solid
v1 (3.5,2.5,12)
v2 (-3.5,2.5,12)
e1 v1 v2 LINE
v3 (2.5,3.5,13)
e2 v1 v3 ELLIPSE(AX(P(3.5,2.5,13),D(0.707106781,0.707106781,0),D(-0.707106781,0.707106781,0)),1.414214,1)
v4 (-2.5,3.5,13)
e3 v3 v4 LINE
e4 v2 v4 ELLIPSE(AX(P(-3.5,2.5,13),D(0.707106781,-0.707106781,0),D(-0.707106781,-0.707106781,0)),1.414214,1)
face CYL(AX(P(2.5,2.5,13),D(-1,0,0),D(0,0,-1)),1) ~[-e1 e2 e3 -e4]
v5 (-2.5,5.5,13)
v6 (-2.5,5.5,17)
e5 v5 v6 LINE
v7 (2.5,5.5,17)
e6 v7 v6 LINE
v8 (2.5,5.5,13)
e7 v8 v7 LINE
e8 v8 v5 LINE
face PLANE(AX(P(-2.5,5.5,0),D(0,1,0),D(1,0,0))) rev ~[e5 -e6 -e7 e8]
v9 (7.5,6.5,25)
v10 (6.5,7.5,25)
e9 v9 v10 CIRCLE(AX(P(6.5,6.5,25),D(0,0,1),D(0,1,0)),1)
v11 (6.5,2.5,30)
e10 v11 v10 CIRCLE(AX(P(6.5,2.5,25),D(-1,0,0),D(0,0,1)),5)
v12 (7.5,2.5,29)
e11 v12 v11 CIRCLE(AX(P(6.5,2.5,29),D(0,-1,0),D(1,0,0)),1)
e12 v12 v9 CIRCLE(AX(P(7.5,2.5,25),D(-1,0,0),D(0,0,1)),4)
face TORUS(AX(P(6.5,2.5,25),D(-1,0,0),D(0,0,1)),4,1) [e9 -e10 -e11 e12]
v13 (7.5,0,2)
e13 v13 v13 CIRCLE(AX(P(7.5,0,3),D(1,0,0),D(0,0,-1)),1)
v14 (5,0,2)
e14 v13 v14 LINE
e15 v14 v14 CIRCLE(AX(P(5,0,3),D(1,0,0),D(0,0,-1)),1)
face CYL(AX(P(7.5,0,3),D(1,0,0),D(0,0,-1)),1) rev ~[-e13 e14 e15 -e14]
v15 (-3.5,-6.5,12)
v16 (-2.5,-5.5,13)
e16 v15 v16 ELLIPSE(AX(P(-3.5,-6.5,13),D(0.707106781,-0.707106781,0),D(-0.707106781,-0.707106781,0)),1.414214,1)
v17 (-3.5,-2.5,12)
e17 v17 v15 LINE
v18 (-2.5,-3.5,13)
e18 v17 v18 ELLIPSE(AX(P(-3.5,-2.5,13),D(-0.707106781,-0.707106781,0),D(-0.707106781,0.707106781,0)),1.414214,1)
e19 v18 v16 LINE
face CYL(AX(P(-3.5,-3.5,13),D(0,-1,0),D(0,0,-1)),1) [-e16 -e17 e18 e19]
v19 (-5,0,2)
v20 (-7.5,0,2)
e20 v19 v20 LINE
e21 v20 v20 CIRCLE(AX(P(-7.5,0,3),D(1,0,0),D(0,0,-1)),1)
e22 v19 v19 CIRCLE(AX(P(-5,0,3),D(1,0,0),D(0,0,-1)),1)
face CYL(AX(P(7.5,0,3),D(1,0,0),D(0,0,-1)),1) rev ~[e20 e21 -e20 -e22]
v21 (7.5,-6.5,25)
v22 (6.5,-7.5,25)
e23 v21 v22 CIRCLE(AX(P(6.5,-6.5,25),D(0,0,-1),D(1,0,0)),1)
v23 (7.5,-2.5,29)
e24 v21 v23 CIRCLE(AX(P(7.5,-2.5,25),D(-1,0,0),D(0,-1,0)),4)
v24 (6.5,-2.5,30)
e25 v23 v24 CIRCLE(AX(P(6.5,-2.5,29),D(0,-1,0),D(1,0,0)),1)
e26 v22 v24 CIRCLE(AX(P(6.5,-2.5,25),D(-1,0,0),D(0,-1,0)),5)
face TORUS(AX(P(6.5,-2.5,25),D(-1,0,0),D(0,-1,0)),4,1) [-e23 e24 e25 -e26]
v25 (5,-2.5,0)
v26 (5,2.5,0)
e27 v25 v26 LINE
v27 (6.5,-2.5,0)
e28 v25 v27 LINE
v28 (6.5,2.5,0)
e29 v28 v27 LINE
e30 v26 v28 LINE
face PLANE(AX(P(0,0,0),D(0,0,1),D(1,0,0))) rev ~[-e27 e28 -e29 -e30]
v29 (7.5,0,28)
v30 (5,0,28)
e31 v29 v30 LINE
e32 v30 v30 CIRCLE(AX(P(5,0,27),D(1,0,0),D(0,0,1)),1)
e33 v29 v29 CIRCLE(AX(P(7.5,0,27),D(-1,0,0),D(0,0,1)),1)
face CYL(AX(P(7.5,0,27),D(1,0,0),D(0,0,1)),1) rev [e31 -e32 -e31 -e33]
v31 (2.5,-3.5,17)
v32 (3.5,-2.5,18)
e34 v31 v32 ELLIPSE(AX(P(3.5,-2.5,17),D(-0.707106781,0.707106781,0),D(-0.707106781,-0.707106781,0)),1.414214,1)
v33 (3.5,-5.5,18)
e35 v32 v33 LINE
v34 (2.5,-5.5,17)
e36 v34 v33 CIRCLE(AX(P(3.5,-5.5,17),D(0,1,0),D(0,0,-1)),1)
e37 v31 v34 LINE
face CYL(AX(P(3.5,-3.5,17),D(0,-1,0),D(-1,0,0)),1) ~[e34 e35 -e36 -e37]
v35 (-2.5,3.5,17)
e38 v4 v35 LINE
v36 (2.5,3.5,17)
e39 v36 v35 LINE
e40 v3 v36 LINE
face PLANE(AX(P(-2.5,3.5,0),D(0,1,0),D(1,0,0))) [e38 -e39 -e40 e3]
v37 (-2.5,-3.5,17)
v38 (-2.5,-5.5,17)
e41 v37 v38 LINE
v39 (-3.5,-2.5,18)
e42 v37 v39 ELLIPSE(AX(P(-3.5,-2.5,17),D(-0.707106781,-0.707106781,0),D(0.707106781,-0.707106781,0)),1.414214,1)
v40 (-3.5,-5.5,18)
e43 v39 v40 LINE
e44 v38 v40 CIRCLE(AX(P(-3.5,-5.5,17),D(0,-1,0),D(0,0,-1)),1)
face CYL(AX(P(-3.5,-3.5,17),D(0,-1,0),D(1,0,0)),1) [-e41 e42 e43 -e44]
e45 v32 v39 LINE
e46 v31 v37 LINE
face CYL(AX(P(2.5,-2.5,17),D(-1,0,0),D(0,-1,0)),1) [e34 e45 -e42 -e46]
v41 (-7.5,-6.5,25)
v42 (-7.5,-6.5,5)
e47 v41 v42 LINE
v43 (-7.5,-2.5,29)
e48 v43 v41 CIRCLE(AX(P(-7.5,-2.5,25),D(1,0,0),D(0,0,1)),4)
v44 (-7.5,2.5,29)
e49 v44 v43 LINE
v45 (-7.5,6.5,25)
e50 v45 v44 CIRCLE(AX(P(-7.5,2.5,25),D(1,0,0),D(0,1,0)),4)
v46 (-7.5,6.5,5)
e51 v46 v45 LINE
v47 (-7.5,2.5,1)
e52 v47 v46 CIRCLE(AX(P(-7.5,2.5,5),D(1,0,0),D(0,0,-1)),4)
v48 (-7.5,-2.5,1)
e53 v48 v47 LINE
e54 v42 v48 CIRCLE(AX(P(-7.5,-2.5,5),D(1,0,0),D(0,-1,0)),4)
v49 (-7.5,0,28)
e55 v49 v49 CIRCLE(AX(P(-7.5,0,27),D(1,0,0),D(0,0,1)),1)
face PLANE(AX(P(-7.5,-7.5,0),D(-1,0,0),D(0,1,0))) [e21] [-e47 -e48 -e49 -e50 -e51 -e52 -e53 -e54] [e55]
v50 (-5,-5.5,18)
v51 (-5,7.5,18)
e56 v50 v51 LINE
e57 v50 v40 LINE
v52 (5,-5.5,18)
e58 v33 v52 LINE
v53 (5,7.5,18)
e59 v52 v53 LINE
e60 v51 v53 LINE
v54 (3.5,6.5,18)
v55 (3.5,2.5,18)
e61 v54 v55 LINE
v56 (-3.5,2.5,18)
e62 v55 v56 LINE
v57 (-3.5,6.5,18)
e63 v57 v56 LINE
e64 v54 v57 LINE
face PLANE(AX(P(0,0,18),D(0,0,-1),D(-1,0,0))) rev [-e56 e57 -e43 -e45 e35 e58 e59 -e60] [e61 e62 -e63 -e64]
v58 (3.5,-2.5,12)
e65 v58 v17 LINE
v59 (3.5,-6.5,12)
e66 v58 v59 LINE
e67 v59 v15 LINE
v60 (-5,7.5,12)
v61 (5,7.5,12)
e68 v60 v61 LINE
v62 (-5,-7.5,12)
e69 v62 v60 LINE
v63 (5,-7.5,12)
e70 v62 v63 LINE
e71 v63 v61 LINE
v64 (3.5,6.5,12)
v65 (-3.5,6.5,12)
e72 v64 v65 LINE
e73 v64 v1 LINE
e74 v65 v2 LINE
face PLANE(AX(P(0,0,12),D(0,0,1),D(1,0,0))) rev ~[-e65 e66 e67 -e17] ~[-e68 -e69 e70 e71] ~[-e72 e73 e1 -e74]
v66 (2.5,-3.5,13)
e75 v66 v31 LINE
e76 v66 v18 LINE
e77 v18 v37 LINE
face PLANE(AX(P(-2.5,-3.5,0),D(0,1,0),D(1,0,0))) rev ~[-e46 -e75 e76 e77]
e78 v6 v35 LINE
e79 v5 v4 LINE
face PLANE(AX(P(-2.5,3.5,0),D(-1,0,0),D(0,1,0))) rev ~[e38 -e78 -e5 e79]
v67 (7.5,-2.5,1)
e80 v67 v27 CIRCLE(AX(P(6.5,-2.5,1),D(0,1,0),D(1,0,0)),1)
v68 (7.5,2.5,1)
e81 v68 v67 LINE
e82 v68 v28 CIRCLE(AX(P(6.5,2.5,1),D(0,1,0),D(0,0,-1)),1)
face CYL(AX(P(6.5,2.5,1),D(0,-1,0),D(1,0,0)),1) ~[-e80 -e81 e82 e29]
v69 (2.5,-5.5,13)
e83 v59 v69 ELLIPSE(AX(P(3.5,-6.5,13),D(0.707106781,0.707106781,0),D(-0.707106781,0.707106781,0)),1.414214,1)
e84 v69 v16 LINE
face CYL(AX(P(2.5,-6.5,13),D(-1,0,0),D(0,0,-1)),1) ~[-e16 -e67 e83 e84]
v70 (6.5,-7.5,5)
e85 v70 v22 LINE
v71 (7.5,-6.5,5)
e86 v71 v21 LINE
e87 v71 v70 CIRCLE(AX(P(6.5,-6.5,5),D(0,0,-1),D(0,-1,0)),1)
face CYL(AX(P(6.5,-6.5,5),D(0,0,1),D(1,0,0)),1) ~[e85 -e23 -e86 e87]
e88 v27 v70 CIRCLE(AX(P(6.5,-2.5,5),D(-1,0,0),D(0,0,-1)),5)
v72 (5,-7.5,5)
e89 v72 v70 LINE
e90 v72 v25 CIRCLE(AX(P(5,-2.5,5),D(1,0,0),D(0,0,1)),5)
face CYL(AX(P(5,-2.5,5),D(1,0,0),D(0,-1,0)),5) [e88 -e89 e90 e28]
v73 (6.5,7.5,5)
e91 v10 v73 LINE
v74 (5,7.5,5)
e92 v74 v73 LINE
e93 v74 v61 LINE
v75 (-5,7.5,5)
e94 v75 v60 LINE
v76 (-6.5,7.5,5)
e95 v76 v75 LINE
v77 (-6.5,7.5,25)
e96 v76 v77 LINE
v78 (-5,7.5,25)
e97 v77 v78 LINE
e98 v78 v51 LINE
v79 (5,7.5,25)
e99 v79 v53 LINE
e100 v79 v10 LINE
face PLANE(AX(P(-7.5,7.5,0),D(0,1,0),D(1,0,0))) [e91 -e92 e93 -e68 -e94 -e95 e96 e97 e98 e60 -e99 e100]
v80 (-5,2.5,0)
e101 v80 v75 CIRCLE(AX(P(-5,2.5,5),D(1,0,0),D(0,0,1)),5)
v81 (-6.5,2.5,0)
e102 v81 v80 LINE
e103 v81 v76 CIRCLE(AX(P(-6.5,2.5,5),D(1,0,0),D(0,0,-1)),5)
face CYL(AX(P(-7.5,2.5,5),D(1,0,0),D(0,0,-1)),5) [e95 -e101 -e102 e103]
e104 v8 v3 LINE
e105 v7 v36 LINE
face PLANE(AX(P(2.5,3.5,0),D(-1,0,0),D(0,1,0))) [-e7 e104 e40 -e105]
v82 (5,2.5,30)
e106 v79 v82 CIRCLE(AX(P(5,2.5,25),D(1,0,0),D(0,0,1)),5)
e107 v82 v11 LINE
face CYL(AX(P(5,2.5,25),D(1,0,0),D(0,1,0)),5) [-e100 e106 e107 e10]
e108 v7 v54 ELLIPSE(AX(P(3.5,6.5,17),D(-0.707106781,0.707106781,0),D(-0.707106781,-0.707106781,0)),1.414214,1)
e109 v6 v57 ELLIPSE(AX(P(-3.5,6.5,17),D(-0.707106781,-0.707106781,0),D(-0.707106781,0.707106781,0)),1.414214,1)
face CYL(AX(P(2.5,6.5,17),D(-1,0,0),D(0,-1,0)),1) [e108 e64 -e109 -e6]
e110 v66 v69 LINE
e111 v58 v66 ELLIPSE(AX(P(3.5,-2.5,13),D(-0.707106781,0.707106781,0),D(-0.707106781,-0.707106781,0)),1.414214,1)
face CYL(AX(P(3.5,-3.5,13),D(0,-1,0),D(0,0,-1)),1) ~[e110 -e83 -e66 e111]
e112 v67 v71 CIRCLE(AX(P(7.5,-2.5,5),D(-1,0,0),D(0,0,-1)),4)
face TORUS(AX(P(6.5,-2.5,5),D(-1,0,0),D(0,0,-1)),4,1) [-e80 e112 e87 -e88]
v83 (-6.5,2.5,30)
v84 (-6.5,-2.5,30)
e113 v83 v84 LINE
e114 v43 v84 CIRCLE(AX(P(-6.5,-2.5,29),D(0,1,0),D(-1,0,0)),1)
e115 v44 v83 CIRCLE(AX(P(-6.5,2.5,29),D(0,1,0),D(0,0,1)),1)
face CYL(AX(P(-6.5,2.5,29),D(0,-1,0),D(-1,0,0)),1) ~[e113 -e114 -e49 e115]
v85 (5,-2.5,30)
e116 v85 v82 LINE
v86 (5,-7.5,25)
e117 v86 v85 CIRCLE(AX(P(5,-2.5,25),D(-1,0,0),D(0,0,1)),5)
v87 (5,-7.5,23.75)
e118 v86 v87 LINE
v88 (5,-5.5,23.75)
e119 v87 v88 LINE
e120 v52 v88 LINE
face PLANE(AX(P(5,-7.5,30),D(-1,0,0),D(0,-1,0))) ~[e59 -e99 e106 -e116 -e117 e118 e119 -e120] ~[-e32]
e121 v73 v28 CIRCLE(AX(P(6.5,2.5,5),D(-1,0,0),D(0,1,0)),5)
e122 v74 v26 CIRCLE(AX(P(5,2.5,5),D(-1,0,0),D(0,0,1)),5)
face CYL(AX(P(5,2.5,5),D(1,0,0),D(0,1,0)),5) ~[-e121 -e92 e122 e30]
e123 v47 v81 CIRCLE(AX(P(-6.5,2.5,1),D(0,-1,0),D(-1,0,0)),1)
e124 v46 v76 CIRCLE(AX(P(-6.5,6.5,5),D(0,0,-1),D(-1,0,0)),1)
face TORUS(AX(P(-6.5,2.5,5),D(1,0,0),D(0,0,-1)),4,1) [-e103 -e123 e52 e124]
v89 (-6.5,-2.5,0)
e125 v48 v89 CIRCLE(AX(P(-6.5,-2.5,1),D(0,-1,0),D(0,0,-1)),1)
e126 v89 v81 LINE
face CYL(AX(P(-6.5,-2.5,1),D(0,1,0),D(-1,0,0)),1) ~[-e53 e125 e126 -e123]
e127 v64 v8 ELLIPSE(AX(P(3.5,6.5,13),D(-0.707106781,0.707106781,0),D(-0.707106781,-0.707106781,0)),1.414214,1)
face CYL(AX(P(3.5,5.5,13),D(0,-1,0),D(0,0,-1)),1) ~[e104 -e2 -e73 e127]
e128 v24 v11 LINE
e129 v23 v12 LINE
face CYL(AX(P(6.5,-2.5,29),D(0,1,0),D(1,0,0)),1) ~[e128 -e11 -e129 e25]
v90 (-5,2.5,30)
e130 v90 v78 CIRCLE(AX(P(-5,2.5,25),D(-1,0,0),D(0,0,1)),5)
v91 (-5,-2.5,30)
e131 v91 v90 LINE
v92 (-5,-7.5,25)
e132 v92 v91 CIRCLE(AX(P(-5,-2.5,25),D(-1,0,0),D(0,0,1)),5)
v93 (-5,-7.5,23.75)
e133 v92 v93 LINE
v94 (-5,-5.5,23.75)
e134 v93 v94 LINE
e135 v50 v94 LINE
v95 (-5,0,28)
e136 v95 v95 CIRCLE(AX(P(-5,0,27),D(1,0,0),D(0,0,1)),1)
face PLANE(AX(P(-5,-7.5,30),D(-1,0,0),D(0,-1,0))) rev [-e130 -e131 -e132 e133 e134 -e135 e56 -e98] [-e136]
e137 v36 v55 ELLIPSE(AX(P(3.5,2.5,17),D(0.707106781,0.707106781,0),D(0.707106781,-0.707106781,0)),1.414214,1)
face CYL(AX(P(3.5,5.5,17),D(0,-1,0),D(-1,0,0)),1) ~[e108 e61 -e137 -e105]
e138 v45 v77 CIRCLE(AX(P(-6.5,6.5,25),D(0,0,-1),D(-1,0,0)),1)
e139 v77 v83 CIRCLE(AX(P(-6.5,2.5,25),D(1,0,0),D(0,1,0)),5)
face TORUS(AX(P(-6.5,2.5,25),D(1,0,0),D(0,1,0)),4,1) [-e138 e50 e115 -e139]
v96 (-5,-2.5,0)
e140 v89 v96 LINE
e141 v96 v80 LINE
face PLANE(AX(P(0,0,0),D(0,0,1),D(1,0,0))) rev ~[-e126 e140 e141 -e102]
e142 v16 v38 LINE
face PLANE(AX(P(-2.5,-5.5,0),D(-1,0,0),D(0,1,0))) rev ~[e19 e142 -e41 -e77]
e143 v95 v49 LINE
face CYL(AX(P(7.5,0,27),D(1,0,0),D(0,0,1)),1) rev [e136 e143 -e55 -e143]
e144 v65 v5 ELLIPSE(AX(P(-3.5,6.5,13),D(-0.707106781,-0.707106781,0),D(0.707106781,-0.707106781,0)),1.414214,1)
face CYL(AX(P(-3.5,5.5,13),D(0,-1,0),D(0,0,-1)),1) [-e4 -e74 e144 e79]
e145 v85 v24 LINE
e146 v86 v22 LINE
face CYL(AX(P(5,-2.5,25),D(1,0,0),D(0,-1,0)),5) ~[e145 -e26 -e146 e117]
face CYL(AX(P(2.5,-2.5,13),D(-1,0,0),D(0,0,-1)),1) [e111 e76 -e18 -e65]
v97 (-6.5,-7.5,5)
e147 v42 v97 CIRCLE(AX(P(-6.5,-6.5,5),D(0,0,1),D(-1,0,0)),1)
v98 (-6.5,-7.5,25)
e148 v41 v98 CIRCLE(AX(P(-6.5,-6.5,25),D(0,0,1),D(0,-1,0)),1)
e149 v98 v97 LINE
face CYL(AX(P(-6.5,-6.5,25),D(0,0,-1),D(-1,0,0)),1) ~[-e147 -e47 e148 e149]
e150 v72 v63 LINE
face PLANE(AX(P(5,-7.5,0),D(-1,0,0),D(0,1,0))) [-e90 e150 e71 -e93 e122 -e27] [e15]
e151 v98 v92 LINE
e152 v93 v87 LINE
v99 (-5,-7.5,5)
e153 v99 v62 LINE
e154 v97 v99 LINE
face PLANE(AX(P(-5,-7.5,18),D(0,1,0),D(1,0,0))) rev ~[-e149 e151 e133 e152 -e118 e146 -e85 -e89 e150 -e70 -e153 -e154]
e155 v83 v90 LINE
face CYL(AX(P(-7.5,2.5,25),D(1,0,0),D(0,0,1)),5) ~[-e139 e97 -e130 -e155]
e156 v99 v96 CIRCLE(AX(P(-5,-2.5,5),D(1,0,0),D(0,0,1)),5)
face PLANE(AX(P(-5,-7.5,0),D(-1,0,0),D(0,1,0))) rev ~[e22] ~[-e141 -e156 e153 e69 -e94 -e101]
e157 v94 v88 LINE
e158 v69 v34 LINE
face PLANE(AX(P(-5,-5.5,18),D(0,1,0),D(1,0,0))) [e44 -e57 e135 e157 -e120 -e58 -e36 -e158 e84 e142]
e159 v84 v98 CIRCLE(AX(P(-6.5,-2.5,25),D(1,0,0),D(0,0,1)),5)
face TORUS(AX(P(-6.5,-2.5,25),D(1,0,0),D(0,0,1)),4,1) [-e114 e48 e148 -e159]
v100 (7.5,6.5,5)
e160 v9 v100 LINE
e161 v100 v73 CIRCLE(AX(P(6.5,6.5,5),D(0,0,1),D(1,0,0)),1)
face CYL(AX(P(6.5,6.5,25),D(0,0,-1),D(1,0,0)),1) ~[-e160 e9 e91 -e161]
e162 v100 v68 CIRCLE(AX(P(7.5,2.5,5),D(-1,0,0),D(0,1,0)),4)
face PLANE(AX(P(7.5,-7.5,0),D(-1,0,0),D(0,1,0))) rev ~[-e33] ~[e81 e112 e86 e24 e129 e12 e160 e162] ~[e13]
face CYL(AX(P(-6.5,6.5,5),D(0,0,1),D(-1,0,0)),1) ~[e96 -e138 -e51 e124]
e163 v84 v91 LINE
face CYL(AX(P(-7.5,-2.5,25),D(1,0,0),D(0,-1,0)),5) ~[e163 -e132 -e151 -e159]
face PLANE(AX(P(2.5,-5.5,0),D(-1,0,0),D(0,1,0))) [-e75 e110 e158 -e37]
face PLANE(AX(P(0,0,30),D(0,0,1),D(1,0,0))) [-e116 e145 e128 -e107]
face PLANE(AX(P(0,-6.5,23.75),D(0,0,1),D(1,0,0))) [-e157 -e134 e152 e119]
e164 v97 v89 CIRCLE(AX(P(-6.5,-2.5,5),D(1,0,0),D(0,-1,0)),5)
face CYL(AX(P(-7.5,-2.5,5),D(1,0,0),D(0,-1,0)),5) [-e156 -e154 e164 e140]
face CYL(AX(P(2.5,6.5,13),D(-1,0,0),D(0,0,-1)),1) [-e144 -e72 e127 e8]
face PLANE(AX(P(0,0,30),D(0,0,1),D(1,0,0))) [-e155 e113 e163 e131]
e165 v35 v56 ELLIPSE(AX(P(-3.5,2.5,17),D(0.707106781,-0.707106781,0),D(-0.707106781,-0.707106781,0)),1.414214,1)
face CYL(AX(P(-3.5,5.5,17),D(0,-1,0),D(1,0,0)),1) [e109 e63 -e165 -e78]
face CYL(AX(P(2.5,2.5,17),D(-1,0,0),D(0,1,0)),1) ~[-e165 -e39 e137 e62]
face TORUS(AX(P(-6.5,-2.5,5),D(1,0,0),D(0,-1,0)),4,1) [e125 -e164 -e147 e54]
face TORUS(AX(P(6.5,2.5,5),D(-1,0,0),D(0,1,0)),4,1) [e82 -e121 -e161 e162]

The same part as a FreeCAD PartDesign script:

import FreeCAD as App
import Part
import Sketcher

V = App.Vector


def edges_at(feature, points):
    """Names of the edges that pass closest to the given points."""
    edges = feature.Shape.Edges
    near = lambda p: min(range(len(edges)), key=lambda i: edges[i].distToShape(Part.Vertex(*p))[0])
    return sorted({f"Edge{near(p) + 1}" for p in points})


def add_polygon(sketch, points):
    """Adds a closed chain of lines whose ends are joined by coincident constraints."""
    first, n = sketch.GeometryCount, len(points)
    for a, b in zip(points, points[1:] + points[:1]):
        sketch.addGeometry(Part.LineSegment(App.Vector(*a, 0), App.Vector(*b, 0)), False)
    for i in range(n):
        sketch.addConstraint(Sketcher.Constraint("Coincident", first + i, 2, first + (i + 1) % n, 1))

doc = App.newDocument("Part")
body = doc.addObject("PartDesign::Body", "Body")

# Sketch on XY plane
sketch1 = doc.addObject("Sketcher::SketchObject", "Sketch")
body.addObject(sketch1)
sketch1.AttachmentSupport = (doc.XY_Plane, [""])
sketch1.MapMode = "FlatFace"
add_polygon(sketch1, [(-8, 8), (-8, -8), (8, -8), (8, 8)])  # lines 0-3
sketch1.addConstraint([
    Sketcher.Constraint("Vertical", 0),
    Sketcher.Constraint("Horizontal", 1),
    Sketcher.Constraint("Vertical", 2),
    Sketcher.Constraint("Horizontal", 3),
    Sketcher.Constraint("Symmetric", 0, 2, 2, 2, -1, 1),
    Sketcher.Constraint("Equal", 3, 0),
    Sketcher.Constraint("DistanceX", 1, 1, 1, 2, 15.0),
])
pad1 = doc.addObject("PartDesign::Pad", "Pad")
body.addObject(pad1)
pad1.Profile = sketch1
pad1.Length = 30

# Sketch on XY plane
sketch2 = doc.addObject("Sketcher::SketchObject", "Sketch001")
body.addObject(sketch2)
sketch2.AttachmentSupport = (doc.XY_Plane, [""])
sketch2.MapMode = "FlatFace"
add_polygon(sketch2, [(-5, 8), (-5, -8), (5, -8), (5, 8)])  # lines 0-3
sketch2.addConstraint([
    Sketcher.Constraint("Vertical", 0),
    Sketcher.Constraint("Horizontal", 1),
    Sketcher.Constraint("Vertical", 2),
    Sketcher.Constraint("Horizontal", 3),
    Sketcher.Constraint("Symmetric", 0, 2, 2, 2, -1, 1),
    Sketcher.Constraint("DistanceX", 1, 1, 1, 2, 10.0),
    Sketcher.Constraint("DistanceY", 0, 2, 0, 1, 15.0),
])
pocket1 = doc.addObject("PartDesign::Pocket", "Pocket")
body.addObject(pocket1)
pocket1.Profile = sketch2
pocket1.Length = 12
pocket1.Reversed = True

# Sketch on YZ plane
sketch3 = doc.addObject("Sketcher::SketchObject", "Sketch002")
body.addObject(sketch3)
sketch3.AttachmentSupport = (doc.YZ_Plane, [""])
sketch3.MapMode = "FlatFace"
sketch3.AttachmentOffset = App.Placement(V(0, 0, 7.5), App.Rotation())
sketch3.addGeometry(Part.Circle(V(0, 3, 0), V(0, 0, 1), 1), False)
sketch3.addConstraint([
    Sketcher.Constraint("PointOnObject", 0, 3, -2),
    Sketcher.Constraint("Diameter", 0, 2.0),
    Sketcher.Constraint("DistanceY", -1, 1, 0, 3, 3.0),
])
pocket2 = doc.addObject("PartDesign::Pocket", "Pocket001")
body.addObject(pocket2)
pocket2.Profile = sketch3
pocket2.Type = "ThroughAll"
doc.recompute()

datumplane = doc.addObject("PartDesign::Plane", "DatumPlane")
body.addObject(datumplane)
datumplane.AttachmentSupport = (doc.XY_Plane, [""])
datumplane.MapMode = "FlatFace"
datumplane.AttachmentOffset = App.Placement(V(0, 0, 15), App.Rotation())
mirrored = doc.addObject("PartDesign::Mirrored", "Mirrored")
body.addObject(mirrored)
mirrored.Originals = [pocket1, pocket2]
mirrored.MirrorPlane = (datumplane, [""])
body.Tip = mirrored
doc.recompute()

fillet = doc.addObject("PartDesign::Fillet", "Fillet")
body.addObject(fillet)
fillet.Base = (mirrored, edges_at(mirrored, [
    (6.25, -7.5, 0),
    (-6.25, 7.5, 0),
    (-6.25, -7.5, 30),
    (-6.25, 7.5, 30),
    (6.25, -7.5, 30),
    (-6.25, -7.5, 0),
    (6.25, 7.5, 0),
    (6.25, 7.5, 30),
]))
fillet.Radius = 5
doc.recompute()

fillet2 = doc.addObject("PartDesign::Fillet", "Fillet001")
body.addObject(fillet2)
fillet2.Base = (fillet, edges_at(fillet, [
    (7.5, 0, 30),
    (7.5, 7.5, 15),
    (-7.5, 7.5, 15),
    (7.5, 0, 0),
    (7.5, -7.5, 15),
    (7.5, 6.036, 1.464),
    (7.5, -6.036, 1.464),
    (7.5, -6.036, 28.536),
    (7.5, 6.036, 28.536),
    (-7.5, -7.5, 15),
    (-7.5, 0, 30),
    (-7.5, 0, 0),
    (-7.5, -6.036, 1.464),
    (-7.5, 6.036, 1.464),
    (-7.5, 6.036, 28.536),
    (-7.5, -6.036, 28.536),
]))
fillet2.Radius = 1

# Sketch on XY plane
sketch4 = doc.addObject("Sketcher::SketchObject", "Sketch003")
body.addObject(sketch4)
sketch4.AttachmentSupport = (doc.XY_Plane, [""])
sketch4.MapMode = "FlatFace"
add_polygon(sketch4, [(-2.5, 5.5), (-2.5, 3.5), (2.5, 3.5), (2.5, 5.5)])  # lines 0-3
add_polygon(sketch4, [(-2.5, -3.5), (-2.5, -5.5), (2.5, -5.5), (2.5, -3.5)])  # lines 4-7
sketch4.addConstraint([
    Sketcher.Constraint("Vertical", 0),
    Sketcher.Constraint("Horizontal", 1),
    Sketcher.Constraint("Vertical", 2),
    Sketcher.Constraint("Horizontal", 3),
    Sketcher.Constraint("Vertical", 4),
    Sketcher.Constraint("Horizontal", 5),
    Sketcher.Constraint("Vertical", 6),
    Sketcher.Constraint("Horizontal", 7),
    Sketcher.Constraint("Symmetric", 2, 2, 4, 2, -1, 1),
    Sketcher.Constraint("Symmetric", 0, 2, 6, 2, -1, 1),
    Sketcher.Constraint("Vertical", 3, 2, 4, 2),
    Sketcher.Constraint("DistanceX", 1, 1, 1, 2, 5.0),
    Sketcher.Constraint("DistanceY", 0, 2, 0, 1, 2.0),
    Sketcher.Constraint("DistanceY", 4, 2, 0, 2, 9.0),
])
pocket3 = doc.addObject("PartDesign::Pocket", "Pocket002")
body.addObject(pocket3)
pocket3.Profile = sketch4
pocket3.Type = "ThroughAll"
pocket3.Reversed = True

# Sketch on XY plane
sketch5 = doc.addObject("Sketcher::SketchObject", "Sketch004")
body.addObject(sketch5)
sketch5.AttachmentSupport = (doc.XY_Plane, [""])
sketch5.MapMode = "FlatFace"
sketch5.AttachmentOffset = App.Placement(V(0, 0, 18), App.Rotation())
add_polygon(sketch5, [(-5, -5.5), (-5, -7.5), (5, -7.5), (5, -5.5)])  # lines 0-3
sketch5.addConstraint([
    Sketcher.Constraint("Vertical", 0),
    Sketcher.Constraint("Horizontal", 1),
    Sketcher.Constraint("Vertical", 2),
    Sketcher.Constraint("Horizontal", 3),
    Sketcher.Constraint("DistanceX", 1, 1, 1, 2, 10.0),
    Sketcher.Constraint("DistanceY", 0, 2, 0, 1, 2.0),
    Sketcher.Constraint("DistanceX", 0, 2, -1, 1, 5.0),
    Sketcher.Constraint("DistanceY", 0, 2, -1, 1, 7.5),
])
pad2 = doc.addObject("PartDesign::Pad", "Pad001")
body.addObject(pad2)
pad2.Profile = sketch5
pad2.Length = 5.75
doc.recompute()

fillet3 = doc.addObject("PartDesign::Fillet", "Fillet002")
body.addObject(fillet3)
fillet3.Base = (pad2, edges_at(pad2, [
    (-2.5, -4.5, 18),
    (0, -3.5, 18),
    (2.5, -4.5, 18),
    (0, 5.5, 18),
    (2.5, 4.5, 18),
    (0, 3.5, 18),
    (-2.5, 4.5, 18),
    (-2.5, 4.5, 12),
    (0, 3.5, 12),
    (2.5, 4.5, 12),
    (0, 5.5, 12),
    (0, -5.5, 12),
    (2.5, -4.5, 12),
    (0, -3.5, 12),
    (-2.5, -4.5, 12),
]))
fillet3.Radius = 1

doc.recompute()
